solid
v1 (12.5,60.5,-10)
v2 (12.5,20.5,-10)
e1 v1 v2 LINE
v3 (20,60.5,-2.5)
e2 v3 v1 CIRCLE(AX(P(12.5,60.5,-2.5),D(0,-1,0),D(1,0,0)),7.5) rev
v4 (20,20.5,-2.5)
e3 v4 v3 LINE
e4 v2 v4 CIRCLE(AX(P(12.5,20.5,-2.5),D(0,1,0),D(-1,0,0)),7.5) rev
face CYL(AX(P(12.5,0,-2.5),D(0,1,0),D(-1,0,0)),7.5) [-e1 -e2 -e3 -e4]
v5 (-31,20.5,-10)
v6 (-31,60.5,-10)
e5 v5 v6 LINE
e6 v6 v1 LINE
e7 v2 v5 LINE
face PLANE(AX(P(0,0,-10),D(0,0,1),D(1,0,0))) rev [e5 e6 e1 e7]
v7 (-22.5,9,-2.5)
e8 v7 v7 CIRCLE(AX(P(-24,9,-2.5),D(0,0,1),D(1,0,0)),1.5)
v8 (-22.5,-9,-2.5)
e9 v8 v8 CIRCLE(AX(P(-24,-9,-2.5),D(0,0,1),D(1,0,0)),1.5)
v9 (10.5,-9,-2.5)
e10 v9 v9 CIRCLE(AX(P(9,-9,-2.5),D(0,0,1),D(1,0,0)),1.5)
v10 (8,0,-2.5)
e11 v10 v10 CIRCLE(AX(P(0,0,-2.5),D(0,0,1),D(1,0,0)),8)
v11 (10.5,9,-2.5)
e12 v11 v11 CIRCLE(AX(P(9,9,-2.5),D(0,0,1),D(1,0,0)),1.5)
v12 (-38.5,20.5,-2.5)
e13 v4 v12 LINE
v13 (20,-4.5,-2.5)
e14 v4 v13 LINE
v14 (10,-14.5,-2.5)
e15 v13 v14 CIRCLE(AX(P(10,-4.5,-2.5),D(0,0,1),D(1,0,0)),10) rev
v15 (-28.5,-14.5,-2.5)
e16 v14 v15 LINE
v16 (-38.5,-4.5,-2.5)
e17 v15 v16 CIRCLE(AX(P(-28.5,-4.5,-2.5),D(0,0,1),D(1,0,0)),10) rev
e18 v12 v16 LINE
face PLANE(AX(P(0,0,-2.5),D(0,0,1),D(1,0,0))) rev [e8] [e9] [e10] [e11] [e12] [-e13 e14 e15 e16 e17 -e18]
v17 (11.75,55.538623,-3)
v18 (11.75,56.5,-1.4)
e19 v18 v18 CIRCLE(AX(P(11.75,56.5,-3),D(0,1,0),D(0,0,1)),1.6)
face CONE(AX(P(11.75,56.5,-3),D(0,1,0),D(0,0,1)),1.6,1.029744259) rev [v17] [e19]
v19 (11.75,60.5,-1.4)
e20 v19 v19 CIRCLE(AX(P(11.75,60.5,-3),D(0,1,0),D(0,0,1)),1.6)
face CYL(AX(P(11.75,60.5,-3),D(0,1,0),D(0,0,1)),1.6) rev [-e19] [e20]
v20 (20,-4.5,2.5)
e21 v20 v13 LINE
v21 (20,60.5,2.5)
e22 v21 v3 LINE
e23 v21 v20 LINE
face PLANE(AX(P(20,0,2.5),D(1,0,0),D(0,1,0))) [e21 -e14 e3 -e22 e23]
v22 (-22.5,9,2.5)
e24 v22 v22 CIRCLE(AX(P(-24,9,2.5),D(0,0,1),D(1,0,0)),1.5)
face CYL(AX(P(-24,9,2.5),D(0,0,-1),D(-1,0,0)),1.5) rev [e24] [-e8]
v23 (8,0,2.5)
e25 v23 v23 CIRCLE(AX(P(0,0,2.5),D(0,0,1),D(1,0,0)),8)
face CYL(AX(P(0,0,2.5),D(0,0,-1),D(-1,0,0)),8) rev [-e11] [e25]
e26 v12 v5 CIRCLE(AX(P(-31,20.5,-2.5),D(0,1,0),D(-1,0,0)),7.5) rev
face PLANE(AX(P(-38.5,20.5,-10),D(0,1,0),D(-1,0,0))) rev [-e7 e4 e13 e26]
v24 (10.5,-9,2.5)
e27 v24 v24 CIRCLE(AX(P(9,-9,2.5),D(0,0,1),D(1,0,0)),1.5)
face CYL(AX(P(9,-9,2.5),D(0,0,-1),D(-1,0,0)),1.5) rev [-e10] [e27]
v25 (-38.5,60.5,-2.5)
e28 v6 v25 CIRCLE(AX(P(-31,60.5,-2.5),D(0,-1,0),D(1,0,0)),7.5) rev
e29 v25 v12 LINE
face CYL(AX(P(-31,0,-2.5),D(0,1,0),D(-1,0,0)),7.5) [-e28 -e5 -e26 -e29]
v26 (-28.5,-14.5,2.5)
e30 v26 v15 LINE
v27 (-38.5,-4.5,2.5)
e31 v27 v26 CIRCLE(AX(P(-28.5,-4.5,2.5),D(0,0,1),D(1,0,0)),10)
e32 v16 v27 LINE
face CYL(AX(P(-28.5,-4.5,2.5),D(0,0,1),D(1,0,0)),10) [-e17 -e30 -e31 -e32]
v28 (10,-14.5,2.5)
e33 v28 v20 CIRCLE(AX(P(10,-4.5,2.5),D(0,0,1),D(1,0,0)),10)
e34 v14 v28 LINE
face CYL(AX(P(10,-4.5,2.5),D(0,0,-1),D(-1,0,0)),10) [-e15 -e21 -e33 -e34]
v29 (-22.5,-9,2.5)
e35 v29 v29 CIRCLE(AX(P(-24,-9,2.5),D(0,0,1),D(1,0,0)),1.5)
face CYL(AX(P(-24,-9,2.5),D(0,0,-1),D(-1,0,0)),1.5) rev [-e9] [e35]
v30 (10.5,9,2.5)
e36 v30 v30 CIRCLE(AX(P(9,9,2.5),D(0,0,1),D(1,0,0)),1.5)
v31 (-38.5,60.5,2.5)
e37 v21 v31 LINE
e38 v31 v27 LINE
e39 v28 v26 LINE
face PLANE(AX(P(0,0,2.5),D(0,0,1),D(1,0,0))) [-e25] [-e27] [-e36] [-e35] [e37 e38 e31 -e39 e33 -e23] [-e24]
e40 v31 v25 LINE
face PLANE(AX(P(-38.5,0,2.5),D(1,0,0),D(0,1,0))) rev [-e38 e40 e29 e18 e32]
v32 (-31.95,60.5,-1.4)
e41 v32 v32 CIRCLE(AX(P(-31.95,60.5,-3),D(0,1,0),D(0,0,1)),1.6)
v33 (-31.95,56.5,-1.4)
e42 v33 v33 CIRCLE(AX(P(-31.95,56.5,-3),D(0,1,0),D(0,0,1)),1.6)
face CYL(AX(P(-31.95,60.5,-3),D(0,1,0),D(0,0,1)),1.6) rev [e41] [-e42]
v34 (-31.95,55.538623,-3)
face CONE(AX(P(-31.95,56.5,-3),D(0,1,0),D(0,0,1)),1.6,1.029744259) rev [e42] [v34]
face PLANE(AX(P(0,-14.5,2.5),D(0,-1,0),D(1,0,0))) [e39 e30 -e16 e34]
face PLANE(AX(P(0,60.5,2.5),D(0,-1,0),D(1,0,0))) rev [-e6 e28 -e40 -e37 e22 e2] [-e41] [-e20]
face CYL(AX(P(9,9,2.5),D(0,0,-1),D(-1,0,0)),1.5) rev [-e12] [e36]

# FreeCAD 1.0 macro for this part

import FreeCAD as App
import Part
import Sketcher
Q = App.Units.Quantity


def edges_at(feature, points):
    """Names of the edges that pass closest to the given points."""
    edges = feature.Shape.Edges
    near = lambda p: min(range(len(edges)), key=lambda i: edges[i].distToShape(Part.Vertex(*p))[0])
    return sorted({f"Edge{near(p) + 1}" for p in points})


def add_polygon(sketch, points):
    """Adds a closed chain of lines whose ends are joined by coincident constraints."""
    first, n = sketch.GeometryCount, len(points)
    for a, b in zip(points, points[1:] + points[:1]):
        sketch.addGeometry(Part.LineSegment(App.Vector(*a, 0), App.Vector(*b, 0)), False)
    for i in range(n):
        sketch.addConstraint(Sketcher.Constraint("Coincident", first + i, 2, first + (i + 1) % n, 1))

doc = App.newDocument("Part")
body = doc.addObject("PartDesign::Body", "Body")

# Sketch on XY plane
sketch1 = doc.addObject("Sketcher::SketchObject", "Sketch")
body.addObject(sketch1)
sketch1.AttachmentSupport = (doc.XY_Plane, [""])
sketch1.MapMode = "FlatFace"
add_polygon(sketch1, [(-38.5, 60.5), (-38.5, -14.5), (20, -14.5), (20, 60.5)])  # lines 0-3
sketch1.addGeometry(Part.Circle(App.Vector(-24, -9, 0), App.Vector(0, 0, 1), 1.5), False)  # 4
sketch1.addGeometry(Part.Circle(App.Vector(9, -9, 0), App.Vector(0, 0, 1), 1.5), False)  # 5
sketch1.addGeometry(Part.Circle(App.Vector(-24, 9, 0), App.Vector(0, 0, 1), 1.5), False)  # 6
sketch1.addGeometry(Part.Circle(App.Vector(0, 0, 0), App.Vector(0, 0, 1), 8), False)  # 7
sketch1.addGeometry(Part.Circle(App.Vector(9, 9, 0), App.Vector(0, 0, 1), 1.5), False)  # 8
sketch1.addConstraint([
    Sketcher.Constraint("Vertical", 0),
    Sketcher.Constraint("Horizontal", 1),
    Sketcher.Constraint("Vertical", 2),
    Sketcher.Constraint("Horizontal", 3),
    Sketcher.Constraint("Coincident", 7, 3, -1, 1),
    Sketcher.Constraint("Equal", 4, 5),
    Sketcher.Constraint("Equal", 5, 6),
    Sketcher.Constraint("Equal", 6, 8),
    Sketcher.Constraint("Symmetric", 4, 3, 6, 3, -1),
    Sketcher.Constraint("Symmetric", 5, 3, 8, 3, -1),
    Sketcher.Constraint("Horizontal", 4, 3, 5, 3),
    Sketcher.Constraint("Diameter", 4, Q("3 mm")),
    Sketcher.Constraint("Diameter", 7, Q("16 mm")),
    Sketcher.Constraint("DistanceY", 0, 2, 0, 1, Q("75 mm")),
    Sketcher.Constraint("DistanceX", 1, 1, 1, 2, Q("58.5 mm")),
    Sketcher.Constraint("DistanceX", 4, 3, -1, 1, Q("24 mm")),
    Sketcher.Constraint("DistanceY", 4, 3, -1, 1, Q("9 mm")),
    Sketcher.Constraint("DistanceX", -1, 1, 5, 3, Q("9 mm")),
    Sketcher.Constraint("DistanceX", -1, 1, 1, 2, Q("20 mm")),
    Sketcher.Constraint("DistanceY", 0, 2, -1, 1, Q("14.5 mm")),
])
pad1 = doc.addObject("PartDesign::Pad", "Pad")
body.addObject(pad1)
pad1.Profile = sketch1
pad1.Length = 5
pad1.Midplane = True

# Sketch on XY plane
sketch2 = doc.addObject("Sketcher::SketchObject", "Sketch001")
body.addObject(sketch2)
sketch2.AttachmentSupport = (doc.XY_Plane, [""])
sketch2.MapMode = "FlatFace"
sketch2.AttachmentOffset = App.Placement(App.Vector(0, 0, -2.5), App.Rotation())
add_polygon(sketch2, [(20, 60), (20, 20), (-38, 20), (-38, 60)])  # lines 0-3
sketch2.addConstraint([
    Sketcher.Constraint("Vertical", 0),
    Sketcher.Constraint("Horizontal", 1),
    Sketcher.Constraint("Vertical", 2),
    Sketcher.Constraint("Horizontal", 3),
    Sketcher.Constraint("DistanceY", 0, 2, 0, 1, Q("40 mm")),
    Sketcher.Constraint("DistanceX", 1, 2, 1, 1, Q("58.5 mm")),
    Sketcher.Constraint("DistanceX", -1, 1, 0, 2, Q("20 mm")),
    Sketcher.Constraint("DistanceY", -1, 1, 0, 2, Q("20.5 mm")),
])
pad2 = doc.addObject("PartDesign::Pad", "Pad001")
body.addObject(pad2)
pad2.Profile = sketch2
pad2.Length = 7.5
pad2.Reversed = True

# Sketch on XZ plane
sketch3 = doc.addObject("Sketcher::SketchObject", "Sketch002")
body.addObject(sketch3)
sketch3.AttachmentSupport = (doc.XZ_Plane, [""])
sketch3.MapMode = "FlatFace"
sketch3.AttachmentOffset = App.Placement(App.Vector(0, 0, -60.5), App.Rotation())
sketch3.addGeometry([
    Part.Circle(App.Vector(-31.9, -3, 0), App.Vector(0, 0, 1), 1.6),
    Part.Circle(App.Vector(11.8, -3, 0), App.Vector(0, 0, 1), 1.6),
], False)
sketch3.addConstraint([
    Sketcher.Constraint("Equal", 0, 1),
    Sketcher.Constraint("Horizontal", 0, 3, 1, 3),
    Sketcher.Constraint("Diameter", 0, Q("3.2 mm")),
    Sketcher.Constraint("DistanceY", 0, 3, -1, 1, Q("3 mm")),
    Sketcher.Constraint("DistanceX", 0, 3, 1, 3, Q("43.7 mm")),
    Sketcher.Constraint("DistanceX", 0, 3, -1, 1, Q("31.95 mm")),
])
doc.recompute()
hole = doc.addObject("PartDesign::Hole", "Hole")
body.addObject(hole)
hole.Profile = sketch3
hole.ThreadType = "None"
hole.Diameter = 3.2
hole.DepthType = "Dimension"
hole.Depth = 4
hole.DrillPoint = "Angled"
hole.DrillPointAngle = 118
hole.Reversed = True
doc.recompute()

fillet = doc.addObject("PartDesign::Fillet", "Fillet")
body.addObject(fillet)
fillet.Base = (hole, edges_at(hole, [(20, -14.5, 0), (-38.5, -14.5, 0)]))
fillet.Radius = 10
doc.recompute()

fillet2 = doc.addObject("PartDesign::Fillet", "Fillet001")
body.addObject(fillet2)
fillet2.Base = (fillet, edges_at(fillet, [(-38.5, 40.5, -10), (20, 40.5, -10)]))
fillet2.Radius = 7.5

doc.recompute()
